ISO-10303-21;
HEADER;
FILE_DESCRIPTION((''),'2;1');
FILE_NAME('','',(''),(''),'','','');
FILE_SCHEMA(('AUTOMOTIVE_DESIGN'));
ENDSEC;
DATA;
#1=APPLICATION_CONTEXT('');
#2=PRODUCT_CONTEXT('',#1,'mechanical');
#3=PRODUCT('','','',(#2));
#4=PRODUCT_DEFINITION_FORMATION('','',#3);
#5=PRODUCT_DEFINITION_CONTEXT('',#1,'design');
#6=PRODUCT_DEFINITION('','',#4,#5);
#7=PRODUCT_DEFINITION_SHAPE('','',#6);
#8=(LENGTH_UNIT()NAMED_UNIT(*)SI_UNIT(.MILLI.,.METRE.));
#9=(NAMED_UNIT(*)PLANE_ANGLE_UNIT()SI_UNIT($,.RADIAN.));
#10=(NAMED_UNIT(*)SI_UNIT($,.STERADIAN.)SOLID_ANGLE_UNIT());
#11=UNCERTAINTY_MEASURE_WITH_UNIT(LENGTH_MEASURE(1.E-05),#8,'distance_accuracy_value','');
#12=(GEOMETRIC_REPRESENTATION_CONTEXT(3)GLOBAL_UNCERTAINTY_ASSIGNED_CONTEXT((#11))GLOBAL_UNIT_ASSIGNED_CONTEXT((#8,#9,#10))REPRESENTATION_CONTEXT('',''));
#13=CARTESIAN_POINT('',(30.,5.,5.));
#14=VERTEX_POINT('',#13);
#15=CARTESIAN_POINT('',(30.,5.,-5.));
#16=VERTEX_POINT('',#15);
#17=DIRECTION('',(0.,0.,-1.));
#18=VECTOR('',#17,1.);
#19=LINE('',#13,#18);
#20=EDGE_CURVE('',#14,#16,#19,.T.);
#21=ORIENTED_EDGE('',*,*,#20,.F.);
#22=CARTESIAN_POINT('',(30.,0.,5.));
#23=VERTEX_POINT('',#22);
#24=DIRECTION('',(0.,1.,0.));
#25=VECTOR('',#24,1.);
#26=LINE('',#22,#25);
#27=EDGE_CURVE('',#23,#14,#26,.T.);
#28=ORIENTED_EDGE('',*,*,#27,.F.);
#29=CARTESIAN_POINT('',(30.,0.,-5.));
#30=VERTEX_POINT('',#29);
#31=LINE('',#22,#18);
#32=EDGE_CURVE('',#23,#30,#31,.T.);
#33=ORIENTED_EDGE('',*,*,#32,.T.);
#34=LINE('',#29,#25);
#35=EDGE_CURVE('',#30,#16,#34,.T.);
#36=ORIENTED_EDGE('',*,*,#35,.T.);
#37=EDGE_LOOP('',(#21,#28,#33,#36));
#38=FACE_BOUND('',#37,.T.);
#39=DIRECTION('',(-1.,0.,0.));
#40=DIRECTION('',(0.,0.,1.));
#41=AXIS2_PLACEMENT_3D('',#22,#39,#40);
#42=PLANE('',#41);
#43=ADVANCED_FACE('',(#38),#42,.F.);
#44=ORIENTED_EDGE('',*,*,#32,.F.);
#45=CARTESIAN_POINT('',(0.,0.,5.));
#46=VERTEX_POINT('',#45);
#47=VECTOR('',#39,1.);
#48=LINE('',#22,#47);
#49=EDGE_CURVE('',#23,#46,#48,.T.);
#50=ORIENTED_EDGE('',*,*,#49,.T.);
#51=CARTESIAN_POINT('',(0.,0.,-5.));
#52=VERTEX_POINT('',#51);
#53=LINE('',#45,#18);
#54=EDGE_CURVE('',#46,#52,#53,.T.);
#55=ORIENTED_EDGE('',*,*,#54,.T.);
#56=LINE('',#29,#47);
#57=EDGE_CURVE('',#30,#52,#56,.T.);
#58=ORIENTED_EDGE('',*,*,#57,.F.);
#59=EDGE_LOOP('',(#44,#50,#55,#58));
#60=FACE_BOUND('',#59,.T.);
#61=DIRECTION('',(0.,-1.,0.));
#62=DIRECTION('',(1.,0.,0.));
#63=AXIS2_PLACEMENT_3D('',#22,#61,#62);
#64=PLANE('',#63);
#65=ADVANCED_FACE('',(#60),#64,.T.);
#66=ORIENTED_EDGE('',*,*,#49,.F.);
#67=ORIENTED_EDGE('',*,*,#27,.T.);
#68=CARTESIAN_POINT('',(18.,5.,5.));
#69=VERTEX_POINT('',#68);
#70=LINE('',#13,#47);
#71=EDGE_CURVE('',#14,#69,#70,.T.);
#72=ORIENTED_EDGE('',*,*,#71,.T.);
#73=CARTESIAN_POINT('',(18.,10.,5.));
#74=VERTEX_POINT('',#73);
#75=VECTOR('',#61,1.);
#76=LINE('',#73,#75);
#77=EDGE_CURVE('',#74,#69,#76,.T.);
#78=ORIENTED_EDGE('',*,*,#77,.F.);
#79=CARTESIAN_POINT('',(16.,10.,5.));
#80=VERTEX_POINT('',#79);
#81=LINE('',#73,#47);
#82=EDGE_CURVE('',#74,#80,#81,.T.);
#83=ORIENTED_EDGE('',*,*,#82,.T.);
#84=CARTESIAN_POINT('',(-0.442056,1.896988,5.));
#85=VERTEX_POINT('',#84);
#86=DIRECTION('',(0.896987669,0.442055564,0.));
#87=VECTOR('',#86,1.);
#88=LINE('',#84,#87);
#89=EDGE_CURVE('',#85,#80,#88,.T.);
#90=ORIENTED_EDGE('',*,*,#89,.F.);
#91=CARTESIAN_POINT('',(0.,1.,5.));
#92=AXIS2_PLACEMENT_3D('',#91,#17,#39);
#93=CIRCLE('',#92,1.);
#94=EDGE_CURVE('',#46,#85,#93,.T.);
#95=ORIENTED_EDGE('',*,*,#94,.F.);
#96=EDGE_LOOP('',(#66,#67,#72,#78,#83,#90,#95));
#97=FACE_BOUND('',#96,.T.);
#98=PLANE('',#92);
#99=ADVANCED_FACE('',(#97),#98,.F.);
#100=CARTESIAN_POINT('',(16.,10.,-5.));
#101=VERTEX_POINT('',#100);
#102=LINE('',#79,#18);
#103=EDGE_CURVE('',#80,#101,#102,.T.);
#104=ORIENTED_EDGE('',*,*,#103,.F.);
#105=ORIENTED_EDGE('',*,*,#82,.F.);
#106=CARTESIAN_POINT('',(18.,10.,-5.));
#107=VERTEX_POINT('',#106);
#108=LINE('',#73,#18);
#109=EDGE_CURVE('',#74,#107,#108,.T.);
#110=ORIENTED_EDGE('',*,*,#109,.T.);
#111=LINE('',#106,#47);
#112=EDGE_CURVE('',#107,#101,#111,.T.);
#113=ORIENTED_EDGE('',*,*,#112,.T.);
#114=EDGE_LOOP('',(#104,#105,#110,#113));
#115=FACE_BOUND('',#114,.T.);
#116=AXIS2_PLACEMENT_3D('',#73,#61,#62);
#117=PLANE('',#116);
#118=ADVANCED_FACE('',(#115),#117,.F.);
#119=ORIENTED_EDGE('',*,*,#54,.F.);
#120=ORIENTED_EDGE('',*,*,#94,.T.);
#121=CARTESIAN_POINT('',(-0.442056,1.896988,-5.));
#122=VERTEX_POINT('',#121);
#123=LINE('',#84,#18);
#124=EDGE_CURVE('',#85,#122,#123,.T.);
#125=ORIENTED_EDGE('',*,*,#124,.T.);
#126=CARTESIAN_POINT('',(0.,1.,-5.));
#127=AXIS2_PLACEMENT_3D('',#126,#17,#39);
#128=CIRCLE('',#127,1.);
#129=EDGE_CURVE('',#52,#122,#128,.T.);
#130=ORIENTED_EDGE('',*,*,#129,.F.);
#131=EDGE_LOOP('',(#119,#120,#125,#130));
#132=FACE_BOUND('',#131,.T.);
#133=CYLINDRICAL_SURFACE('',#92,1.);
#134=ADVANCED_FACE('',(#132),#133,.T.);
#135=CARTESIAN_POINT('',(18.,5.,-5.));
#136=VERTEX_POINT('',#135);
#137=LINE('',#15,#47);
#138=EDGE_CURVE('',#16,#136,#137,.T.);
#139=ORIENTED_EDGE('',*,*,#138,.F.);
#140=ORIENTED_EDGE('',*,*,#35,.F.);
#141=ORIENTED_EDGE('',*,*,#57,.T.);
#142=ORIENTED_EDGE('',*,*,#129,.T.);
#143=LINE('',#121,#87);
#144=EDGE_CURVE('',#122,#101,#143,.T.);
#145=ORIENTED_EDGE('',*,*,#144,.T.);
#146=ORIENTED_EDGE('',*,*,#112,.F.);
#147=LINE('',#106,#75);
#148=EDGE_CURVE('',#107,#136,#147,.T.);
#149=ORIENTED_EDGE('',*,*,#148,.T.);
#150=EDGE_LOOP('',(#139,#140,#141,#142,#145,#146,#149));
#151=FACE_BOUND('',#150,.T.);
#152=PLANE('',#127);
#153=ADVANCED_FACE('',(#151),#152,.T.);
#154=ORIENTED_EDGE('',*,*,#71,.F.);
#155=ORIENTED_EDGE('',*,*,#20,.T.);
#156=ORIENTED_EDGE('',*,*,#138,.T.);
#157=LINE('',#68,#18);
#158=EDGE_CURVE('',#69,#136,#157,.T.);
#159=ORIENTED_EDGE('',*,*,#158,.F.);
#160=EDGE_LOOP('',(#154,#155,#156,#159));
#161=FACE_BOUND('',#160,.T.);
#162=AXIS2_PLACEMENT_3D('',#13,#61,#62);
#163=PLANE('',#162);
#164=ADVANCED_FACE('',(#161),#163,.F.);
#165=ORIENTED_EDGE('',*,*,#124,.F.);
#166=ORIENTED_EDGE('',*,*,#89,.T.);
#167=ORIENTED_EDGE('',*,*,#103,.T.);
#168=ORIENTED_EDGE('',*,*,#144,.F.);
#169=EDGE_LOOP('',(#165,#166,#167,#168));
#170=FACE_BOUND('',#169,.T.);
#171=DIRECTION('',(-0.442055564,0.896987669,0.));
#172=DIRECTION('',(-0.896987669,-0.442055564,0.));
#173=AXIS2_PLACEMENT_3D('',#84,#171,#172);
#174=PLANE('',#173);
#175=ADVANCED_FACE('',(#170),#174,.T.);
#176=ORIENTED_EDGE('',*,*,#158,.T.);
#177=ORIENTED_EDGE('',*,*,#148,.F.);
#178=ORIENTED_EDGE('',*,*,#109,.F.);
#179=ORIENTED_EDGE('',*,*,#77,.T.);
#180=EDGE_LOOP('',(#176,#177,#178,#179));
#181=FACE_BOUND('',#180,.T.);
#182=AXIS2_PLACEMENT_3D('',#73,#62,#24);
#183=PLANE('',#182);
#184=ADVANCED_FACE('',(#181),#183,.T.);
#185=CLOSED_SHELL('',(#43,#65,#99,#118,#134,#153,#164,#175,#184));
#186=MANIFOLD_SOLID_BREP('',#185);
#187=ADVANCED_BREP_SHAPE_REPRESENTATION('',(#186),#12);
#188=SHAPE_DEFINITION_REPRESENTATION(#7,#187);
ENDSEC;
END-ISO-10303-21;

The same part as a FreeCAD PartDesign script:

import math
import FreeCAD as App
import Part
import Sketcher
Q = App.Units.Quantity

doc = App.newDocument("Part")
body = doc.addObject("PartDesign::Body", "Body")

# Sketch on XY plane
sketch1 = doc.addObject("Sketcher::SketchObject", "Sketch")
body.addObject(sketch1)
sketch1.AttachmentSupport = (doc.XY_Plane, [""])
sketch1.MapMode = "FlatFace"
sketch1.addGeometry(Part.LineSegment(App.Vector(16, 10, 0), App.Vector(-0.4, 1.9, 0)), False)
sketch1.addGeometry(Part.ArcOfCircle(Part.Circle(App.Vector(0, 1, 0), App.Vector(0, 0, 1), 1), math.radians(116), math.radians(270)), False)
sketch1.addGeometry(Part.LineSegment(App.Vector(0, 0, 0), App.Vector(30, 0, 0)), False)
sketch1.addGeometry(Part.LineSegment(App.Vector(30, 0, 0), App.Vector(30, 5, 0)), False)
sketch1.addGeometry(Part.LineSegment(App.Vector(30, 5, 0), App.Vector(18, 5, 0)), False)
sketch1.addGeometry(Part.LineSegment(App.Vector(18, 5, 0), App.Vector(18, 10, 0)), False)
sketch1.addGeometry(Part.LineSegment(App.Vector(18, 10, 0), App.Vector(16, 10, 0)), False)
sketch1.addConstraint(Sketcher.Constraint("Tangent", 0, 2, 1, 1))
sketch1.addConstraint(Sketcher.Constraint("Tangent", 1, 2, 2, 1))
sketch1.addConstraint(Sketcher.Constraint("Coincident", 2, 2, 3, 1))
sketch1.addConstraint(Sketcher.Constraint("Coincident", 3, 2, 4, 1))
sketch1.addConstraint(Sketcher.Constraint("Coincident", 4, 2, 5, 1))
sketch1.addConstraint(Sketcher.Constraint("Coincident", 5, 2, 6, 1))
sketch1.addConstraint(Sketcher.Constraint("Coincident", 6, 2, 0, 1))
sketch1.addConstraint(Sketcher.Constraint("Horizontal", 2))
sketch1.addConstraint(Sketcher.Constraint("Vertical", 3))
sketch1.addConstraint(Sketcher.Constraint("Horizontal", 4))
sketch1.addConstraint(Sketcher.Constraint("Vertical", 5))
sketch1.addConstraint(Sketcher.Constraint("Horizontal", 6))
sketch1.addConstraint(Sketcher.Constraint("Coincident", 1, 2, -1, 1))
sketch1.addConstraint(Sketcher.Constraint("Equal", 3, 5))
sketch1.addConstraint(Sketcher.Constraint("Radius", 1, Q("1 mm")))
sketch1.addConstraint(Sketcher.Constraint("DistanceX", 2, 1, 2, 2, Q("30 mm")))
sketch1.addConstraint(Sketcher.Constraint("DistanceX", 4, 2, 4, 1, Q("12 mm")))
sketch1.addConstraint(Sketcher.Constraint("DistanceX", 6, 2, 6, 1, Q("2 mm")))
sketch1.addConstraint(Sketcher.Constraint("DistanceY", 3, 1, 3, 2, Q("5 mm")))
pad1 = doc.addObject("PartDesign::Pad", "Pad")
body.addObject(pad1)
pad1.Profile = sketch1
pad1.Length = 10
pad1.Midplane = True

doc.recompute()
